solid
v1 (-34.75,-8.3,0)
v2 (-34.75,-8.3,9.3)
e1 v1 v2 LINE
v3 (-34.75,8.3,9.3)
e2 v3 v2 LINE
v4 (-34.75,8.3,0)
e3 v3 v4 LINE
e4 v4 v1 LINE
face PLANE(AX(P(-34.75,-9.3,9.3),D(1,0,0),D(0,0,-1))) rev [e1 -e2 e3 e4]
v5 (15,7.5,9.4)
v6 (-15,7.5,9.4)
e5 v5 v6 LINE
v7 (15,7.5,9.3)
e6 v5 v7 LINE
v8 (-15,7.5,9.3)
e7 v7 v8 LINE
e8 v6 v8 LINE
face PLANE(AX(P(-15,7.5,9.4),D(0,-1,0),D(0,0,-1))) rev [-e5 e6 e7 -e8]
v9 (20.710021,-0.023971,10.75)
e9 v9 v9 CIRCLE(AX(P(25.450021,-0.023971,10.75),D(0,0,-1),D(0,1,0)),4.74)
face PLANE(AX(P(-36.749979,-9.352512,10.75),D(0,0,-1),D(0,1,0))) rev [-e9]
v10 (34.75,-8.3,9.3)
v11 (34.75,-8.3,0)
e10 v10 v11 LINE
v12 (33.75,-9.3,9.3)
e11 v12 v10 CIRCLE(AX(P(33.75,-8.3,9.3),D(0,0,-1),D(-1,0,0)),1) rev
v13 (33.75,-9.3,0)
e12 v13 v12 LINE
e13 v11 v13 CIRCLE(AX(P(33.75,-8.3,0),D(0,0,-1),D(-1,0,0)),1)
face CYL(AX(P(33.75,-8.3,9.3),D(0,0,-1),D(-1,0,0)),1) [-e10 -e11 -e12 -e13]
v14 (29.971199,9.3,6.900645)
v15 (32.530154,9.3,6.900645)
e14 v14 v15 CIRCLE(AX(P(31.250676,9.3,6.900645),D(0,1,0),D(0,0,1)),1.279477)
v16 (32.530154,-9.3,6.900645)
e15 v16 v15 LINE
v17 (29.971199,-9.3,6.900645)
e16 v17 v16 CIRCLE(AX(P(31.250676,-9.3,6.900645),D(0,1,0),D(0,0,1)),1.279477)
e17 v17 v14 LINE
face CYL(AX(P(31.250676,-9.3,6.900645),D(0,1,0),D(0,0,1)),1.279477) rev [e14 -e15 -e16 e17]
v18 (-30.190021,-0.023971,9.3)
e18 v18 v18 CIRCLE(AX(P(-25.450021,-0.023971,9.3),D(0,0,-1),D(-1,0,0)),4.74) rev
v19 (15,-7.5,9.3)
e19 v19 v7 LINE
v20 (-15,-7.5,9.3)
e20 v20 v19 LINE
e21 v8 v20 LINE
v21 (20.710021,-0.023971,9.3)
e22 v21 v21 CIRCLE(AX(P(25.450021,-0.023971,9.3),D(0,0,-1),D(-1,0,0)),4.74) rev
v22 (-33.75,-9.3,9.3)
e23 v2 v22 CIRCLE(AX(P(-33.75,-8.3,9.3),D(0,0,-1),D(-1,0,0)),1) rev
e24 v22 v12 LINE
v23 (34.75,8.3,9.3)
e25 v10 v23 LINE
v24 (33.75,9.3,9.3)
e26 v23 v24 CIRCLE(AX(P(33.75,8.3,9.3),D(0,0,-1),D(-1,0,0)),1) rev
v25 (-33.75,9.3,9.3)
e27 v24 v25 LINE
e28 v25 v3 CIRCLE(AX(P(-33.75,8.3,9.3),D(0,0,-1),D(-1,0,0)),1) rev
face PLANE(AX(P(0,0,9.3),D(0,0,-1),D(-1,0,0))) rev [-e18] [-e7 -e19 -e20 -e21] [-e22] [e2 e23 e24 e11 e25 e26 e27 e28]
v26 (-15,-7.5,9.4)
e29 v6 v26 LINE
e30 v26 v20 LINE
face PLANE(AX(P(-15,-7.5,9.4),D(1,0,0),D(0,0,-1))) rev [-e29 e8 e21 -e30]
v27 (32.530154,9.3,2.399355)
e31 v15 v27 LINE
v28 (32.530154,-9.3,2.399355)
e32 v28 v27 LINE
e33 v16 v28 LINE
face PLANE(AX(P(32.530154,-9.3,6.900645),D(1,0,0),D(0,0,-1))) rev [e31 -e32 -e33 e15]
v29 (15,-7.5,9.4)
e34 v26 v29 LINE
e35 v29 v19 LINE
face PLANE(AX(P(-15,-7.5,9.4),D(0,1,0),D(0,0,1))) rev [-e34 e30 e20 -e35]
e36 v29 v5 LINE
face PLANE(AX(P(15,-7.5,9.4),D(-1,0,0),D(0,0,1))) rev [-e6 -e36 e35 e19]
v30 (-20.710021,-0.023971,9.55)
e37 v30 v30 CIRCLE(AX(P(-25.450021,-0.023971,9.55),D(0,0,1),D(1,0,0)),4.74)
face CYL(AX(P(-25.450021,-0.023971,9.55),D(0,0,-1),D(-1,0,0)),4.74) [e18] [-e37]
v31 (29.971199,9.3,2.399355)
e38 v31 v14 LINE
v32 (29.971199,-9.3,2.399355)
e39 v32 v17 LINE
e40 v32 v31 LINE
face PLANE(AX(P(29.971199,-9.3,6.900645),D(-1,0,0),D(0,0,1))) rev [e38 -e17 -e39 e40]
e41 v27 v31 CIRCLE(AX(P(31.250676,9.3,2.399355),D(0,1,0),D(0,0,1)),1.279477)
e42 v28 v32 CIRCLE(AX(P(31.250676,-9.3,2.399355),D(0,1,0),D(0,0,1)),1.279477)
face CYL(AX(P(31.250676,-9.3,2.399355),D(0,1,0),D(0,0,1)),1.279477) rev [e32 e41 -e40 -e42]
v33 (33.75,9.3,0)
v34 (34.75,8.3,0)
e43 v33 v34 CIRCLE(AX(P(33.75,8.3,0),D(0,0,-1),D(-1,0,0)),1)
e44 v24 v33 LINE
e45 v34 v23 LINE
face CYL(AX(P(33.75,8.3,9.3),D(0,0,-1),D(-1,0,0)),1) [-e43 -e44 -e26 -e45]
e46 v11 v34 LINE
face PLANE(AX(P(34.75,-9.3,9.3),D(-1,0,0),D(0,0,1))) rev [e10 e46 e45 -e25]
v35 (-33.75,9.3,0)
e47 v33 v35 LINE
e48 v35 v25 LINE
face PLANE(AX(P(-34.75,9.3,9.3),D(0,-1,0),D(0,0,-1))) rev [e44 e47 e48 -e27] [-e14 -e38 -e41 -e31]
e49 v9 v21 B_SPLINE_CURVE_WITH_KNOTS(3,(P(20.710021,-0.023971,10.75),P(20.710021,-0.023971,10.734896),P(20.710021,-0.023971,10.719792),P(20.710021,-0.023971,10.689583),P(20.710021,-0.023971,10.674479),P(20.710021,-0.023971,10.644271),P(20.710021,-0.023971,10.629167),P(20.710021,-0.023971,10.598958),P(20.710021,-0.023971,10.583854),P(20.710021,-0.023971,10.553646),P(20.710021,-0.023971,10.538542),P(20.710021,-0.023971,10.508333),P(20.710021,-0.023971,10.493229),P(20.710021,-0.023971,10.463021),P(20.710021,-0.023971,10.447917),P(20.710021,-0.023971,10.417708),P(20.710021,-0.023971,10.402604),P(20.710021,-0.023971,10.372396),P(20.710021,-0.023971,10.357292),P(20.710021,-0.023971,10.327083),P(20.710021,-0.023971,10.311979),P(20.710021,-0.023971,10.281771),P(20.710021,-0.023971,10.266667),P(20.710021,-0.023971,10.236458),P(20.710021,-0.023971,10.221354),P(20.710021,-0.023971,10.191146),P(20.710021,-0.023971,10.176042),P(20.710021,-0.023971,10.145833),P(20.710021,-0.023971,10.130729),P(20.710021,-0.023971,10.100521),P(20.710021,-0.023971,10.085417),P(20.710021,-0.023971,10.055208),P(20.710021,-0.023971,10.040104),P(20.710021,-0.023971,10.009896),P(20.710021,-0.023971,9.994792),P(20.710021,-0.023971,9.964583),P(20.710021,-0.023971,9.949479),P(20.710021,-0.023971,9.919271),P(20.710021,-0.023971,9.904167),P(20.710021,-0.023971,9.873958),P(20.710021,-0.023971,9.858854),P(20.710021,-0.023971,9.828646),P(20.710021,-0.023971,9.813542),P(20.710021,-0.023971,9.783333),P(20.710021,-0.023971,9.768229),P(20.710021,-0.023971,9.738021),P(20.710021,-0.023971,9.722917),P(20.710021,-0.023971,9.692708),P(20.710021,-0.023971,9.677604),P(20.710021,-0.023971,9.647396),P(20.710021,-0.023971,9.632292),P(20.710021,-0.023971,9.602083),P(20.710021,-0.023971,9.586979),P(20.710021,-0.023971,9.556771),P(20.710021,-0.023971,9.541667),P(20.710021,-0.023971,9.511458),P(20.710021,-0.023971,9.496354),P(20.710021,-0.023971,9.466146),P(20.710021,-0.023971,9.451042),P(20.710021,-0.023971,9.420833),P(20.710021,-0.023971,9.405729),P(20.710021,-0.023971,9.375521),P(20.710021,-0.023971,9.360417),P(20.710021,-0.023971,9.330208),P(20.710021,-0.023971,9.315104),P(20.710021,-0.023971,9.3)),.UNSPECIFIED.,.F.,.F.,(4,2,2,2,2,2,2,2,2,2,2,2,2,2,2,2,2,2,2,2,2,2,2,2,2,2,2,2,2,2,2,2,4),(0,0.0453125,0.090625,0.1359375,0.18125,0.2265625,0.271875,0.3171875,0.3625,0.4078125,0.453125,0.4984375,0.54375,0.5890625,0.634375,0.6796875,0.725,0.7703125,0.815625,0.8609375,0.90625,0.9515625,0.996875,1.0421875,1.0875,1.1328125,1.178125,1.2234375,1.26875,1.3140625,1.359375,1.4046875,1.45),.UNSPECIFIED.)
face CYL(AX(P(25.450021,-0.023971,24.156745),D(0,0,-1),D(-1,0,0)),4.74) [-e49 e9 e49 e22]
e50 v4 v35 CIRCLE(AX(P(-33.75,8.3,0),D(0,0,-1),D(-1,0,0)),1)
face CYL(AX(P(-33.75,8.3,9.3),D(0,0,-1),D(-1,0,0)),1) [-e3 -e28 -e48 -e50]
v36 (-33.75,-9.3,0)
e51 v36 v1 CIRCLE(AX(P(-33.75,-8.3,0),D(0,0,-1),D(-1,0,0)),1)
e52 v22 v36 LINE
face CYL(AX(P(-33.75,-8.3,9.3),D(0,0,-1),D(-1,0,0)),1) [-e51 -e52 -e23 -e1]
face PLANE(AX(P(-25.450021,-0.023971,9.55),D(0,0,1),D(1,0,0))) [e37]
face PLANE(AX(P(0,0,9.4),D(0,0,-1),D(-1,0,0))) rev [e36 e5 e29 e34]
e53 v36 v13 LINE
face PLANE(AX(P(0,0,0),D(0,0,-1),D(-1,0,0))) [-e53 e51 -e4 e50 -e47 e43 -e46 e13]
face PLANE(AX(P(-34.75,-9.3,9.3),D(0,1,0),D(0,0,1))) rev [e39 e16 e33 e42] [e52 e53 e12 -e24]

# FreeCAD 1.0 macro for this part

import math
import FreeCAD as App
import Part
import Sketcher

V = App.Vector
Q = App.Units.Quantity


def edges_at(feature, points):
    """Names of the edges that pass closest to the given points."""
    edges = feature.Shape.Edges
    near = lambda p: min(range(len(edges)), key=lambda i: edges[i].distToShape(Part.Vertex(*p))[0])
    return sorted({f"Edge{near(p) + 1}" for p in points})


def add_polygon(sketch, points):
    """Adds a closed chain of lines whose ends are joined by coincident constraints."""
    first, n = sketch.GeometryCount, len(points)
    for a, b in zip(points, points[1:] + points[:1]):
        sketch.addGeometry(Part.LineSegment(App.Vector(*a, 0), App.Vector(*b, 0)), False)
    for i in range(n):
        sketch.addConstraint(Sketcher.Constraint("Coincident", first + i, 2, first + (i + 1) % n, 1))

doc = App.newDocument("Part")
body = doc.addObject("PartDesign::Body", "Body")

# Sketch on XY plane
sketch1 = body.newObject("Sketcher::SketchObject", "Sketch")
sketch1.AttachmentSupport = (doc.getObject("XY_Plane"), [""])
sketch1.MapMode = "FlatFace"
add_polygon(sketch1, [(-35, 9), (-35, -9), (35, -9), (35, 9)])  # lines 0-3
sketch1.addConstraint(Sketcher.Constraint("Vertical", 0))
sketch1.addConstraint(Sketcher.Constraint("Horizontal", 1))
sketch1.addConstraint(Sketcher.Constraint("Vertical", 2))
sketch1.addConstraint(Sketcher.Constraint("Horizontal", 3))
sketch1.addConstraint(Sketcher.Constraint("Symmetric", 0, 2, 2, 2, -1, 1))
sketch1.addConstraint(Sketcher.Constraint("DistanceX", 1, 1, 1, 2, Q("69.5 mm")))
sketch1.addConstraint(Sketcher.Constraint("DistanceY", 0, 2, 0, 1, Q("18.6 mm")))
pad1 = body.newObject("PartDesign::Pad", "Pad")
pad1.Profile = sketch1
pad1.Length = 9.3

# Sketch on XZ plane
sketch2 = body.newObject("Sketcher::SketchObject", "Sketch001")
sketch2.AttachmentSupport = (doc.getObject("XZ_Plane"), [""])
sketch2.MapMode = "FlatFace"
sketch2.AttachmentOffset = App.Placement(V(0, 0, -9.3), App.Rotation())
sketch2.addGeometry(Part.LineSegment(V(30, 2.4, 0), V(30, 6.9, 0)), False)
sketch2.addGeometry(Part.ArcOfCircle(Part.Circle(V(31.3, 6.9, 0), V(0, 0, 1), 1.3), math.radians(0), math.radians(180)), False)
sketch2.addGeometry(Part.LineSegment(V(32.5, 6.9, 0), V(32.5, 2.4, 0)), False)
sketch2.addGeometry(Part.ArcOfCircle(Part.Circle(V(31.3, 2.4, 0), V(0, 0, 1), 1.3), math.radians(-180), math.radians(0)), False)
sketch2.addConstraint(Sketcher.Constraint("Tangent", 0, 2, 1, 2))
sketch2.addConstraint(Sketcher.Constraint("Tangent", 1, 1, 2, 1))
sketch2.addConstraint(Sketcher.Constraint("Tangent", 2, 2, 3, 2))
sketch2.addConstraint(Sketcher.Constraint("Tangent", 3, 1, 0, 1))
sketch2.addConstraint(Sketcher.Constraint("Vertical", 0))
sketch2.addConstraint(Sketcher.Constraint("Vertical", 2))
sketch2.addConstraint(Sketcher.Constraint("Radius", 1, Q("1.279477 mm")))
sketch2.addConstraint(Sketcher.Constraint("DistanceY", 0, 1, 0, 2, Q("4.501291 mm")))
sketch2.addConstraint(Sketcher.Constraint("DistanceX", -1, 1, 0, 2, Q("29.971199 mm")))
sketch2.addConstraint(Sketcher.Constraint("DistanceY", -1, 1, 1, 3, Q("6.900645 mm")))
pocket1 = body.newObject("PartDesign::Pocket", "Pocket")
pocket1.Profile = sketch2
pocket1.Type = "ThroughAll"
pocket1.Midplane = True
doc.recompute()

fillet = body.newObject("PartDesign::Fillet", "Fillet")
fillet.Base = (pocket1, edges_at(pocket1, [
    (34.75, -9.3, 4.65),
    (-34.75, -9.3, 4.65),
    (-34.75, 9.3, 4.65),
    (34.75, 9.3, 4.65),
]))
fillet.Radius = 1

# Sketch on XY plane
sketch3 = body.newObject("Sketcher::SketchObject", "Sketch002")
sketch3.AttachmentSupport = (doc.getObject("XY_Plane"), [""])
sketch3.MapMode = "FlatFace"
sketch3.AttachmentOffset = App.Placement(V(0, 0, 9.3), App.Rotation())
sketch3.addGeometry(Part.Circle(V(25.5, 0, 0), V(0, 0, 1), 4.7), False)
sketch3.addConstraint(Sketcher.Constraint("Diameter", 0, Q("9.48 mm")))
sketch3.addConstraint(Sketcher.Constraint("DistanceX", -1, 1, 0, 3, Q("25.450021 mm")))
sketch3.addConstraint(Sketcher.Constraint("DistanceY", 0, 3, -1, 1, Q("0.023971 mm")))
pad2 = body.newObject("PartDesign::Pad", "Pad001")
pad2.Profile = sketch3
pad2.Length = 1.45

# Sketch on XY plane
sketch4 = body.newObject("Sketcher::SketchObject", "Sketch003")
sketch4.AttachmentSupport = (doc.getObject("XY_Plane"), [""])
sketch4.MapMode = "FlatFace"
sketch4.AttachmentOffset = App.Placement(V(0, 0, 9.3), App.Rotation())
sketch4.addGeometry(Part.Circle(V(-25.5, 0, 0), V(0, 0, 1), 4.7), False)
sketch4.addConstraint(Sketcher.Constraint("Diameter", 0, Q("9.48 mm")))
sketch4.addConstraint(Sketcher.Constraint("DistanceX", 0, 3, -1, 1, Q("25.450021 mm")))
sketch4.addConstraint(Sketcher.Constraint("DistanceY", 0, 3, -1, 1, Q("0.023971 mm")))
pad3 = body.newObject("PartDesign::Pad", "Pad002")
pad3.Profile = sketch4
pad3.Length = 0.25

# Sketch on XY plane
sketch5 = body.newObject("Sketcher::SketchObject", "Sketch004")
sketch5.AttachmentSupport = (doc.getObject("XY_Plane"), [""])
sketch5.MapMode = "FlatFace"
sketch5.AttachmentOffset = App.Placement(V(0, 0, 9.3), App.Rotation())
add_polygon(sketch5, [(-15, 8), (-15, -8), (15, -8), (15, 8)])  # lines 0-3
sketch5.addConstraint(Sketcher.Constraint("Vertical", 0))
sketch5.addConstraint(Sketcher.Constraint("Horizontal", 1))
sketch5.addConstraint(Sketcher.Constraint("Vertical", 2))
sketch5.addConstraint(Sketcher.Constraint("Horizontal", 3))
sketch5.addConstraint(Sketcher.Constraint("Symmetric", 0, 2, 2, 2, -1, 1))
sketch5.addConstraint(Sketcher.Constraint("DistanceX", 1, 1, 1, 2, Q("30 mm")))
sketch5.addConstraint(Sketcher.Constraint("DistanceY", 0, 2, 0, 1, Q("15 mm")))
pad4 = body.newObject("PartDesign::Pad", "Pad003")
pad4.Profile = sketch5
pad4.Length = 0.1

doc.recompute()
